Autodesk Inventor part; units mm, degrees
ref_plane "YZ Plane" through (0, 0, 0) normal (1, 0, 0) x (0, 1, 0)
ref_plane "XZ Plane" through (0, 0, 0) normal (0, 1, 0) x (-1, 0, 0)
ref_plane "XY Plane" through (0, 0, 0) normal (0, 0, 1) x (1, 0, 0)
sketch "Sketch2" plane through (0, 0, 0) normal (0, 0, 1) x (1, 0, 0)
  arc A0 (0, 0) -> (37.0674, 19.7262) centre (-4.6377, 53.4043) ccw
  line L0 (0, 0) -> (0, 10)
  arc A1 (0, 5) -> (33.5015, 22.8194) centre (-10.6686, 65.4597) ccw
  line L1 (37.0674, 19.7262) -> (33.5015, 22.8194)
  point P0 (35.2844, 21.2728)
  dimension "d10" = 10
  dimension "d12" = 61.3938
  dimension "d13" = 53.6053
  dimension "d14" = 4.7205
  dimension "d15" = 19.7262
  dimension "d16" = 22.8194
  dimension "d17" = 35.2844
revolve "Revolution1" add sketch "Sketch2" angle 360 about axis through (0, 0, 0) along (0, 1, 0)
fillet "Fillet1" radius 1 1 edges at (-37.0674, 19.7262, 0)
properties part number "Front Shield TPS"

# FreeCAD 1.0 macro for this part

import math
import FreeCAD as App
import Part
import Sketcher
Q = App.Units.Quantity


def edges_at(feature, points):
    """Names of the edges that pass closest to the given points."""
    edges = feature.Shape.Edges
    near = lambda p: min(range(len(edges)), key=lambda i: edges[i].distToShape(Part.Vertex(*p))[0])
    return sorted({f"Edge{near(p) + 1}" for p in points})

doc = App.newDocument("Part")
body = doc.addObject("PartDesign::Body", "Body")

sketch1 = body.newObject("Sketcher::SketchObject", "Sketch")
sketch1.AttachmentSupport = (doc.getObject("XY_Plane"), [""])
sketch1.MapMode = "FlatFace"
sketch1.addGeometry([
    Part.LineSegment(App.Vector(0, 5, 0), App.Vector(0, 0, 0)),
    Part.ArcOfCircle(Part.Circle(App.Vector(-4.6377, 53.4043, 0), App.Vector(0, 0, 1), 53.605294), math.radians(-85.03681), math.radians(-38.921899)),
    Part.LineSegment(App.Vector(37.0674, 19.7262, 0), App.Vector(33.5015, 22.8194, 0)),
    Part.ArcOfCircle(Part.Circle(App.Vector(-10.6686, 65.4597, 0), App.Vector(0, 0, 1), 61.393765), math.radians(-79.992718), math.radians(-43.99042)),
], False)
sketch1.addConstraint([
    Sketcher.Constraint("Coincident", 0, 2, 1, 1),
    Sketcher.Constraint("Coincident", 1, 2, 2, 1),
    Sketcher.Constraint("Coincident", 2, 2, 3, 2),
    Sketcher.Constraint("Coincident", 3, 1, 0, 1),
    Sketcher.Constraint("Vertical", 0),
    Sketcher.Constraint("Coincident", 0, 2, -1, 1),
    Sketcher.Constraint("Radius", 1, Q("53.6053 mm")),
    Sketcher.Constraint("Radius", 3, Q("61.3938 mm")),
    Sketcher.Constraint("DistanceY", 0, 2, 0, 1, Q("5 mm")),
    Sketcher.Constraint("Distance", 2, Q("4.7205 mm")),
    Sketcher.Constraint("DistanceY", -1, 1, 1, 2, Q("19.7262 mm")),
    Sketcher.Constraint("DistanceY", -1, 1, 2, 2, Q("22.8194 mm")),
    Sketcher.Constraint("DistanceX", 3, 3, 2, 2, Q("44.17 mm")),
])
revolution = body.newObject("PartDesign::Revolution", "Revolution")
revolution.Profile = sketch1
revolution.ReferenceAxis = (sketch1, ["V_Axis"])
revolution.Angle = 360
doc.recompute()

fillet = body.newObject("PartDesign::Fillet", "Fillet")
fillet.Base = (revolution, edges_at(revolution, [(-37.067, 19.726, 0)]))
fillet.Radius = 1

doc.recompute()
